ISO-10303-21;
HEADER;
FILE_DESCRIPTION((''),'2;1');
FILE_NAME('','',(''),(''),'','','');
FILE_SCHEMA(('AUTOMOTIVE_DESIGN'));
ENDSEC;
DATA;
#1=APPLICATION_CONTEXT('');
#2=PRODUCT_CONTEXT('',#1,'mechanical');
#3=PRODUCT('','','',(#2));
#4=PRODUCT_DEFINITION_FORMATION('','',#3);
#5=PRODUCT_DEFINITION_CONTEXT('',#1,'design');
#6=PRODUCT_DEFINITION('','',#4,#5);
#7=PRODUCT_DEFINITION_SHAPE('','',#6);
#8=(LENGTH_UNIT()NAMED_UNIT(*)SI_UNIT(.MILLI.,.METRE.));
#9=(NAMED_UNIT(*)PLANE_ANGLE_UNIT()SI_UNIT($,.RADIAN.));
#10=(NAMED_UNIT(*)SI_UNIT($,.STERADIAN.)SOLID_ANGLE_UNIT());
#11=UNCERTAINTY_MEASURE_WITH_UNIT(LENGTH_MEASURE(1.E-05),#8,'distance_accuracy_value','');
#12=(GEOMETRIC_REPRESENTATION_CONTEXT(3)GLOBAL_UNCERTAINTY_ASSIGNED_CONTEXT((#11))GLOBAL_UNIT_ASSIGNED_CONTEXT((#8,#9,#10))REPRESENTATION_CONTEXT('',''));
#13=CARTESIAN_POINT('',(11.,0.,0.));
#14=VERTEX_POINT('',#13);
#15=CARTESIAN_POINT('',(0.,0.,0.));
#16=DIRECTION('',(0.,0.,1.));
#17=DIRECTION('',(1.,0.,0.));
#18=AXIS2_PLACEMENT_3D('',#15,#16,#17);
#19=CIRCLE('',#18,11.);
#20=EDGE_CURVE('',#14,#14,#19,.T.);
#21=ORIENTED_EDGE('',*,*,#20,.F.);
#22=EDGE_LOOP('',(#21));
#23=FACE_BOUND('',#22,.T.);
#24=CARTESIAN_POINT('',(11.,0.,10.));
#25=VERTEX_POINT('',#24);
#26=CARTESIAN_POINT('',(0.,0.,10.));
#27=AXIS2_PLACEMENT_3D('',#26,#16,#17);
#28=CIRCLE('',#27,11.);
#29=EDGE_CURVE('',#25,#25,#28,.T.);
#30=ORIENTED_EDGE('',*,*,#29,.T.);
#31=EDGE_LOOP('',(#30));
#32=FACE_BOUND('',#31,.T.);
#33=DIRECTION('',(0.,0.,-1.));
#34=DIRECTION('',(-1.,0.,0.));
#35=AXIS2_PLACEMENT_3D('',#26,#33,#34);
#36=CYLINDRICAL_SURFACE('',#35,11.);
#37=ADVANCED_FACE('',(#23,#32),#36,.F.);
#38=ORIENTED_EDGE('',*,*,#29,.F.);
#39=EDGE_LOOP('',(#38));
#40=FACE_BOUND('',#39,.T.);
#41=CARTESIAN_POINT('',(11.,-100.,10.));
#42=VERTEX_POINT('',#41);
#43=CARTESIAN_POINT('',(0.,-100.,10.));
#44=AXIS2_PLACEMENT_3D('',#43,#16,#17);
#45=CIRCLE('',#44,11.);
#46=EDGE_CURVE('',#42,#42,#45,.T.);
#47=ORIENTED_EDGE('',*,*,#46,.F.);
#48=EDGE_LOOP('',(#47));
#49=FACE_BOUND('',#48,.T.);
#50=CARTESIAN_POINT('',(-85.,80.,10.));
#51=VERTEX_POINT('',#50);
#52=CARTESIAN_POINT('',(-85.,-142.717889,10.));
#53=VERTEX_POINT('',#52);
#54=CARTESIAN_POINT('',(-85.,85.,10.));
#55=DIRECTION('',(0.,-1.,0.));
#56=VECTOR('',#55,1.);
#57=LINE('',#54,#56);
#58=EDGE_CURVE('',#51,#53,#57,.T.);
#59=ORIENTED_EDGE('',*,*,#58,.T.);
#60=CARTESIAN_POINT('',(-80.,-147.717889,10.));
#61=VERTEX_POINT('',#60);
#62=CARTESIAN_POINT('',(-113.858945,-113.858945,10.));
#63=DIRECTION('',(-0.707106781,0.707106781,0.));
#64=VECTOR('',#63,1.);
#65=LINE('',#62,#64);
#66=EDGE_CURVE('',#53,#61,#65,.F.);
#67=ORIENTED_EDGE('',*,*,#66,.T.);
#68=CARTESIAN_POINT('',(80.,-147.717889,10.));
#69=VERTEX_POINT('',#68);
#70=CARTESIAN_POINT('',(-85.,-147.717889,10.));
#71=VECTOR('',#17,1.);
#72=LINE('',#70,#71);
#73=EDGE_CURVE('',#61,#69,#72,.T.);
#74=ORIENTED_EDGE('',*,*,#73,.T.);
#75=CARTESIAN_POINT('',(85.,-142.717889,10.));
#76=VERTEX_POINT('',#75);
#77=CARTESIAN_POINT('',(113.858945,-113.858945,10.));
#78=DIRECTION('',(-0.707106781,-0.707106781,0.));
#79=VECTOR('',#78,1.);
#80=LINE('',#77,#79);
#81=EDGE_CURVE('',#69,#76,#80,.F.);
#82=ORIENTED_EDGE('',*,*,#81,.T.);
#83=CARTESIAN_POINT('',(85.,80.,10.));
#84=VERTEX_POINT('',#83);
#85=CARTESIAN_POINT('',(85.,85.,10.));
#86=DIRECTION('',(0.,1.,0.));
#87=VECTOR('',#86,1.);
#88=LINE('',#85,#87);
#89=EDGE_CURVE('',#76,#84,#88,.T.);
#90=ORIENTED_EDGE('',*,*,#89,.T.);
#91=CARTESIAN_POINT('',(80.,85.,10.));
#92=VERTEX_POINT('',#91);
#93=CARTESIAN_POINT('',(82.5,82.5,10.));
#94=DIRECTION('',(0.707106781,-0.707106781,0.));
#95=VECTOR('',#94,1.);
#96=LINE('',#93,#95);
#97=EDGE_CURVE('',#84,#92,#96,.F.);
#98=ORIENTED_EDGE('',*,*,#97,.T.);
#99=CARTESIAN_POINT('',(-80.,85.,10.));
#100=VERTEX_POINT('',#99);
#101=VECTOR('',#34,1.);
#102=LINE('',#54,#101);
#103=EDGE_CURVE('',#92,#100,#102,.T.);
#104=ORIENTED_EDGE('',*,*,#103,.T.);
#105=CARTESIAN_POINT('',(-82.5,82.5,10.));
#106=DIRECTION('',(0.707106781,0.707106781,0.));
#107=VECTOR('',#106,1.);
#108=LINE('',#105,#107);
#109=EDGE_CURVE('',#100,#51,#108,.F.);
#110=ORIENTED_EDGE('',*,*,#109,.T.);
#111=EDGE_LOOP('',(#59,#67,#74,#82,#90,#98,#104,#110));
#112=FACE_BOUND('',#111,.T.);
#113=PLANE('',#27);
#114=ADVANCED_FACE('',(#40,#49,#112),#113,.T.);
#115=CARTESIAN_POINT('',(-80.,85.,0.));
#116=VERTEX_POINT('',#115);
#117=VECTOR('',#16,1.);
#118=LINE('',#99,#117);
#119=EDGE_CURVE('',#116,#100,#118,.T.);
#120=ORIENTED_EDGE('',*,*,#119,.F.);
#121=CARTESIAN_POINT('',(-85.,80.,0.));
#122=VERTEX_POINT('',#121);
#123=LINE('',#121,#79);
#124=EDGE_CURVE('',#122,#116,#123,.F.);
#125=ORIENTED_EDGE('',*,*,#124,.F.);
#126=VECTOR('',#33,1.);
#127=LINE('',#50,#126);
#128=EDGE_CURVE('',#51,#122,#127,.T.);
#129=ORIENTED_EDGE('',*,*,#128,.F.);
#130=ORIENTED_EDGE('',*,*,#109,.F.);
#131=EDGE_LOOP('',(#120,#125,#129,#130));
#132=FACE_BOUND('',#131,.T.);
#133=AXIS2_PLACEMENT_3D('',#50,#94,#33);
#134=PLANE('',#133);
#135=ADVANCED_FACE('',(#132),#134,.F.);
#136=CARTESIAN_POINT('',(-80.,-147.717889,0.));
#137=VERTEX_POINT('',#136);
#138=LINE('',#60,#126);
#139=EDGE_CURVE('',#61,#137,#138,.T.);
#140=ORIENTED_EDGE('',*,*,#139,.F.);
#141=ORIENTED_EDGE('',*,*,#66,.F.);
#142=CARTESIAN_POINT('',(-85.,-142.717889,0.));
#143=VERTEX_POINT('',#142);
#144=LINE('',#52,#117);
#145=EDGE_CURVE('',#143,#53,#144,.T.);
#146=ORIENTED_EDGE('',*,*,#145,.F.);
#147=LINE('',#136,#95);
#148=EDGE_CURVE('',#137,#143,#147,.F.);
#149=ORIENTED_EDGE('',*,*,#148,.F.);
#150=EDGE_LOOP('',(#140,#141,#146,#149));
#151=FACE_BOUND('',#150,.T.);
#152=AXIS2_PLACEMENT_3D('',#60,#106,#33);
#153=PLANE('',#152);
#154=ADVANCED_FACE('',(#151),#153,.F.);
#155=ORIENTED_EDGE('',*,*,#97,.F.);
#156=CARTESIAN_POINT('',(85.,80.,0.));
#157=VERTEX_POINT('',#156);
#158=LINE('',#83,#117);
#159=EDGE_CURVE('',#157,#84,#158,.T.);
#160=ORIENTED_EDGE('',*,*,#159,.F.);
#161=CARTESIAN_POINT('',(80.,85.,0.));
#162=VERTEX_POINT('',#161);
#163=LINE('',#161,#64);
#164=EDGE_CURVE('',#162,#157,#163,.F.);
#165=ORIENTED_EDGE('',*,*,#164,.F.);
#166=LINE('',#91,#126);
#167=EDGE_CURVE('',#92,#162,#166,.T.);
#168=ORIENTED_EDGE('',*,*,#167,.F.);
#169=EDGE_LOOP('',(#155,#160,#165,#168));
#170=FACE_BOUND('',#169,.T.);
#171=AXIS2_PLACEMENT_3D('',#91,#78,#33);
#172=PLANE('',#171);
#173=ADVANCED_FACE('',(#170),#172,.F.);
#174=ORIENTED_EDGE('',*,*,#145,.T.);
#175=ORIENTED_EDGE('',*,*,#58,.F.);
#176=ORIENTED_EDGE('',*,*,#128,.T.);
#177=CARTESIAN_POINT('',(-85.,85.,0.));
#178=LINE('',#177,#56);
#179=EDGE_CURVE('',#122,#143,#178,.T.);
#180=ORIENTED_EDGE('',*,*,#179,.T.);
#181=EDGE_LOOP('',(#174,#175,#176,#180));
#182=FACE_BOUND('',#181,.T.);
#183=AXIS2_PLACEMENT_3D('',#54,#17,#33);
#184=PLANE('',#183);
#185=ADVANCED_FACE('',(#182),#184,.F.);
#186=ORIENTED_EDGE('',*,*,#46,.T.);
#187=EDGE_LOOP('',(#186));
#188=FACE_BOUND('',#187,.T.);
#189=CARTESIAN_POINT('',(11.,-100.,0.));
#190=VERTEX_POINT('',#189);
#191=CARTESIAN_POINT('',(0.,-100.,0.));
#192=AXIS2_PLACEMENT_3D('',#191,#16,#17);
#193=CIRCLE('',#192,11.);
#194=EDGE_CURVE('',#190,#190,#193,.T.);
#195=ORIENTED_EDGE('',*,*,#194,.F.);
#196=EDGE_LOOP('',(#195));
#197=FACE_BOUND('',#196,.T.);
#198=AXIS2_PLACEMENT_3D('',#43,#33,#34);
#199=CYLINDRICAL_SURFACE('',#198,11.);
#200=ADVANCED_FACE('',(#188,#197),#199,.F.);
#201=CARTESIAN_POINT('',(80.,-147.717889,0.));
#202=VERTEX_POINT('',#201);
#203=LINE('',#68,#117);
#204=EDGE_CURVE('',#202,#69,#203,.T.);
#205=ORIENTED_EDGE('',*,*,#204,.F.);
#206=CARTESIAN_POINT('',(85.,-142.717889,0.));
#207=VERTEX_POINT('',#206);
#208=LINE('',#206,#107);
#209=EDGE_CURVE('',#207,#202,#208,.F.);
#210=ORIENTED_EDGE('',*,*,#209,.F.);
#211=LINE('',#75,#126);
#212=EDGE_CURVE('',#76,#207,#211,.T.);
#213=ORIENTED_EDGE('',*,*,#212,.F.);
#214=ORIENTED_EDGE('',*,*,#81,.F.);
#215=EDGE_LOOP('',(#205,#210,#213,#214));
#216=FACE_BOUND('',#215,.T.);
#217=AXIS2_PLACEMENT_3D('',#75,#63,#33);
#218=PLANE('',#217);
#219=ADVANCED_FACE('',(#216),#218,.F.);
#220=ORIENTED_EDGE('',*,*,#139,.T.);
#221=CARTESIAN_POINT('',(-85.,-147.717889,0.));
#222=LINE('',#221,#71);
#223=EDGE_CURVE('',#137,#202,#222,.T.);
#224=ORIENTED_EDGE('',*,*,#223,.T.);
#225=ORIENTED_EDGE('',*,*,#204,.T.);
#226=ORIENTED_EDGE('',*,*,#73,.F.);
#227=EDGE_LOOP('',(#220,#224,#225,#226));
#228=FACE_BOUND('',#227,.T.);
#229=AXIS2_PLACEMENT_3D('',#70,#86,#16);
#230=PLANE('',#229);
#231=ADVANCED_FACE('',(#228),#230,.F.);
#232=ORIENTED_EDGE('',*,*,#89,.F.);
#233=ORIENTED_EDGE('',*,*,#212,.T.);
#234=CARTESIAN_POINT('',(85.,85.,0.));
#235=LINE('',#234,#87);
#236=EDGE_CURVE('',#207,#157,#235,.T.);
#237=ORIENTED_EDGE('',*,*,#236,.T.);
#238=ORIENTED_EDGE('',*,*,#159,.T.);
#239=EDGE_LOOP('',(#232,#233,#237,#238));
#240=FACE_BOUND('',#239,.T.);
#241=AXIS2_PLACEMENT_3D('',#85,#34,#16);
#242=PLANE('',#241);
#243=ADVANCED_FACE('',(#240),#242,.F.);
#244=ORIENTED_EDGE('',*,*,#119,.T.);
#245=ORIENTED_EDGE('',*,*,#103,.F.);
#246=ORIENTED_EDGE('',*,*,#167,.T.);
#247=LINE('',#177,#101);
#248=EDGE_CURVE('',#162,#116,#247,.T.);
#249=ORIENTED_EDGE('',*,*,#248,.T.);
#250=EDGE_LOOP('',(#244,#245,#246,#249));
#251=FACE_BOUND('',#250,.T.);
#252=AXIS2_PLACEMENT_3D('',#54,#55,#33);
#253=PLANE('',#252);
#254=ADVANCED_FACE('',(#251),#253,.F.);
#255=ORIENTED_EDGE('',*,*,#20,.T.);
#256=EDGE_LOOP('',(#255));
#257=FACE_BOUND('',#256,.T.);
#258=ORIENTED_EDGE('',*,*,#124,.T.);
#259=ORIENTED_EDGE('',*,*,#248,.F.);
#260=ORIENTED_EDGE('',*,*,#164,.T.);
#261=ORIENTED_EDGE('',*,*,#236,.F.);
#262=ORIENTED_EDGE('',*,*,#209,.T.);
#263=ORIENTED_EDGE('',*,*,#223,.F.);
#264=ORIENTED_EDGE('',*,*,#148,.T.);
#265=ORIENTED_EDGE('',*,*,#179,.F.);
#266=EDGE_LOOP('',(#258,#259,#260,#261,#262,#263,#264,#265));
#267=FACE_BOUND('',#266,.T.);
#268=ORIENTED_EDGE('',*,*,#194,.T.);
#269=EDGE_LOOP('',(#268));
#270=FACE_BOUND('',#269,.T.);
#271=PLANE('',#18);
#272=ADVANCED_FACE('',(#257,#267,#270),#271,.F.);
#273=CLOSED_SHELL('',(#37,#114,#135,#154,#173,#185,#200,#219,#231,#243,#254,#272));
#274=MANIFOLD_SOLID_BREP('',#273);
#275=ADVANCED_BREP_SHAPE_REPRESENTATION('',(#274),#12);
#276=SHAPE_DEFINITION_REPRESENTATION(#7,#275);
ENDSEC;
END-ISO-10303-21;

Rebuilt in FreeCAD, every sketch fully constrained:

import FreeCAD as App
import Part
import Sketcher
from FreeCAD import Vector


def edges_at(feature, points):
    """Names of the edges that pass closest to the given points."""
    edges = feature.Shape.Edges
    near = lambda p: min(range(len(edges)), key=lambda i: edges[i].distToShape(Part.Vertex(*p))[0])
    return sorted({f"Edge{near(p) + 1}" for p in points})

doc = App.newDocument("Part")
body = doc.addObject("PartDesign::Body", "Body")

sketch1 = body.newObject("Sketcher::SketchObject", "Sketch")
sketch1.AttachmentSupport = (doc.getObject("XY_Plane"), [""])
sketch1.MapMode = "FlatFace"
sketch1.addGeometry([
    Part.LineSegment(Vector(-85, 85, 0), Vector(-85, -148, 0)),
    Part.LineSegment(Vector(-85, -148, 0), Vector(85, -148, 0)),
    Part.LineSegment(Vector(85, -148, 0), Vector(85, 85, 0)),
    Part.LineSegment(Vector(85, 85, 0), Vector(-85, 85, 0)),
    Part.Circle(Vector(0, -100, 0), Vector(0, 0, 1), 11),
    Part.Circle(Vector(0, 0, 0), Vector(0, 0, 1), 11),
], False)
sketch1.addConstraint([
    Sketcher.Constraint("Coincident", 0, 2, 1, 1),
    Sketcher.Constraint("Coincident", 1, 2, 2, 1),
    Sketcher.Constraint("Coincident", 2, 2, 3, 1),
    Sketcher.Constraint("Coincident", 3, 2, 0, 1),
    Sketcher.Constraint("Vertical", 0),
    Sketcher.Constraint("Horizontal", 1),
    Sketcher.Constraint("Vertical", 2),
    Sketcher.Constraint("Horizontal", 3),
    Sketcher.Constraint("Coincident", 5, 3, -1, 1),
    Sketcher.Constraint("Equal", 4, 5),
    Sketcher.Constraint("PointOnObject", 4, 3, -2),
    Sketcher.Constraint("Diameter", 4, 22.0),
    Sketcher.Constraint("DistanceX", 1, 1, 1, 2, 170.0),
    Sketcher.Constraint("DistanceY", 4, 3, -1, 1, 100.0),
    Sketcher.Constraint("DistanceX", 0, 2, -1, 1, 85.0),
    Sketcher.Constraint("DistanceY", -1, 1, 2, 2, 85.0),
    Sketcher.Constraint("DistanceY", 0, 2, 0, 1, 232.717889),
])
pad1 = body.newObject("PartDesign::Pad", "Pad")
pad1.Profile = sketch1
pad1.Length = 10
doc.recompute()

chamfer = body.newObject("PartDesign::Chamfer", "Chamfer")
chamfer.Base = (pad1, edges_at(pad1, [
    (-85, 85, 5),
    (85, 85, 5),
    (85, -147.718, 5),
    (-85, -147.718, 5),
]))
chamfer.Size = 5

doc.recompute()
